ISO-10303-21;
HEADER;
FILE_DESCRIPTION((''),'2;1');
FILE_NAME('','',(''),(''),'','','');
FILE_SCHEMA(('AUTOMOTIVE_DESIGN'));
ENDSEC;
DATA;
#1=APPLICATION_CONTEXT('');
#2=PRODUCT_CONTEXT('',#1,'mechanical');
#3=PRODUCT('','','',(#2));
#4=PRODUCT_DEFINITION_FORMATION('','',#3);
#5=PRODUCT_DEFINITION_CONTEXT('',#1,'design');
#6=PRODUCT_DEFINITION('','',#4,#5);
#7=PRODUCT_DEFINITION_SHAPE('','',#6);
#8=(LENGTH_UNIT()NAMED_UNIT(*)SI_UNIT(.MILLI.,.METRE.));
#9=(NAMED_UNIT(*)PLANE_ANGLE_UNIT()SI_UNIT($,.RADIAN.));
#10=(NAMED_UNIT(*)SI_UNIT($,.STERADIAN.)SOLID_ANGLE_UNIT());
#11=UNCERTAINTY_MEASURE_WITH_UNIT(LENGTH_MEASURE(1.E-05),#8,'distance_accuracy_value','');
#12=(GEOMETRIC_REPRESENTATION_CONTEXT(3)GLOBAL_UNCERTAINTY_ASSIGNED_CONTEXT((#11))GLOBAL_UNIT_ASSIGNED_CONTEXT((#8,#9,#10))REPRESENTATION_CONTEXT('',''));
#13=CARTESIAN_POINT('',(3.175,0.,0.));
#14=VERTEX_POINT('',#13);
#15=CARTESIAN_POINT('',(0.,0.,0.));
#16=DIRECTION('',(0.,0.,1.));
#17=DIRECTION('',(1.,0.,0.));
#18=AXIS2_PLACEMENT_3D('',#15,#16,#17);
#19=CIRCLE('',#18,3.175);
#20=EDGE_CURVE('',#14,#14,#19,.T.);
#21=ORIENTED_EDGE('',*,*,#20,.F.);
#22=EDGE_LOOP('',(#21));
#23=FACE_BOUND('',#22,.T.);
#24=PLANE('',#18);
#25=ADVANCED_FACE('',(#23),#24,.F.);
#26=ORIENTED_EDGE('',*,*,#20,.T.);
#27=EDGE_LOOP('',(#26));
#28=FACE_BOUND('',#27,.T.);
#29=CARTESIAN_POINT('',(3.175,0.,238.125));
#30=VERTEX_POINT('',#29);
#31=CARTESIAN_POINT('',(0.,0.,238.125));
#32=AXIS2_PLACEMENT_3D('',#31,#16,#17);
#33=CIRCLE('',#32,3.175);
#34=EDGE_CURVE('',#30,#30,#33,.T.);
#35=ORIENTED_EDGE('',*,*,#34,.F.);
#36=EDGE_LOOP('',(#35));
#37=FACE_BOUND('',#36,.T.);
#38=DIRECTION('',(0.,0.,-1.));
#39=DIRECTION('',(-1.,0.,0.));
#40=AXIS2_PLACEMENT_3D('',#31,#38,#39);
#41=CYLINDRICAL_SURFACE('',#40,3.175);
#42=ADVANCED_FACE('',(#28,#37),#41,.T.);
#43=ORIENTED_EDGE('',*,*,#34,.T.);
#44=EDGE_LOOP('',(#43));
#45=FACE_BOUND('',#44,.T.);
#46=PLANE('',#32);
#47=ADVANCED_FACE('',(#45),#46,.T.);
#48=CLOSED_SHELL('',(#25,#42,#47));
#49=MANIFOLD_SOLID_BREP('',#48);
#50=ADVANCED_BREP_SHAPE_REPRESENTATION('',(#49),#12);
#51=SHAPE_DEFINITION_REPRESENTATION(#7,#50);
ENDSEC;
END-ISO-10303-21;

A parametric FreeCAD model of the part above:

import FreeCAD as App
import Part
import Sketcher
from FreeCAD import Vector
Q = App.Units.Quantity

doc = App.newDocument("Part")
body = doc.addObject("PartDesign::Body", "Body")

sketch1 = body.newObject("Sketcher::SketchObject", "Sketch")
sketch1.AttachmentSupport = (doc.getObject("XY_Plane"), [""])
sketch1.MapMode = "FlatFace"
sketch1.addGeometry(Part.Circle(Vector(0, 0, 0), Vector(0, 0, 1), 3.2), False)
sketch1.addConstraint(Sketcher.Constraint("Coincident", 0, 3, -1, 1))
sketch1.addConstraint(Sketcher.Constraint("Diameter", 0, Q("0.25 in")))
pad1 = body.newObject("PartDesign::Pad", "Pad")
pad1.Profile = sketch1
pad1.Length = Q("9.375 in")

doc.recompute()
